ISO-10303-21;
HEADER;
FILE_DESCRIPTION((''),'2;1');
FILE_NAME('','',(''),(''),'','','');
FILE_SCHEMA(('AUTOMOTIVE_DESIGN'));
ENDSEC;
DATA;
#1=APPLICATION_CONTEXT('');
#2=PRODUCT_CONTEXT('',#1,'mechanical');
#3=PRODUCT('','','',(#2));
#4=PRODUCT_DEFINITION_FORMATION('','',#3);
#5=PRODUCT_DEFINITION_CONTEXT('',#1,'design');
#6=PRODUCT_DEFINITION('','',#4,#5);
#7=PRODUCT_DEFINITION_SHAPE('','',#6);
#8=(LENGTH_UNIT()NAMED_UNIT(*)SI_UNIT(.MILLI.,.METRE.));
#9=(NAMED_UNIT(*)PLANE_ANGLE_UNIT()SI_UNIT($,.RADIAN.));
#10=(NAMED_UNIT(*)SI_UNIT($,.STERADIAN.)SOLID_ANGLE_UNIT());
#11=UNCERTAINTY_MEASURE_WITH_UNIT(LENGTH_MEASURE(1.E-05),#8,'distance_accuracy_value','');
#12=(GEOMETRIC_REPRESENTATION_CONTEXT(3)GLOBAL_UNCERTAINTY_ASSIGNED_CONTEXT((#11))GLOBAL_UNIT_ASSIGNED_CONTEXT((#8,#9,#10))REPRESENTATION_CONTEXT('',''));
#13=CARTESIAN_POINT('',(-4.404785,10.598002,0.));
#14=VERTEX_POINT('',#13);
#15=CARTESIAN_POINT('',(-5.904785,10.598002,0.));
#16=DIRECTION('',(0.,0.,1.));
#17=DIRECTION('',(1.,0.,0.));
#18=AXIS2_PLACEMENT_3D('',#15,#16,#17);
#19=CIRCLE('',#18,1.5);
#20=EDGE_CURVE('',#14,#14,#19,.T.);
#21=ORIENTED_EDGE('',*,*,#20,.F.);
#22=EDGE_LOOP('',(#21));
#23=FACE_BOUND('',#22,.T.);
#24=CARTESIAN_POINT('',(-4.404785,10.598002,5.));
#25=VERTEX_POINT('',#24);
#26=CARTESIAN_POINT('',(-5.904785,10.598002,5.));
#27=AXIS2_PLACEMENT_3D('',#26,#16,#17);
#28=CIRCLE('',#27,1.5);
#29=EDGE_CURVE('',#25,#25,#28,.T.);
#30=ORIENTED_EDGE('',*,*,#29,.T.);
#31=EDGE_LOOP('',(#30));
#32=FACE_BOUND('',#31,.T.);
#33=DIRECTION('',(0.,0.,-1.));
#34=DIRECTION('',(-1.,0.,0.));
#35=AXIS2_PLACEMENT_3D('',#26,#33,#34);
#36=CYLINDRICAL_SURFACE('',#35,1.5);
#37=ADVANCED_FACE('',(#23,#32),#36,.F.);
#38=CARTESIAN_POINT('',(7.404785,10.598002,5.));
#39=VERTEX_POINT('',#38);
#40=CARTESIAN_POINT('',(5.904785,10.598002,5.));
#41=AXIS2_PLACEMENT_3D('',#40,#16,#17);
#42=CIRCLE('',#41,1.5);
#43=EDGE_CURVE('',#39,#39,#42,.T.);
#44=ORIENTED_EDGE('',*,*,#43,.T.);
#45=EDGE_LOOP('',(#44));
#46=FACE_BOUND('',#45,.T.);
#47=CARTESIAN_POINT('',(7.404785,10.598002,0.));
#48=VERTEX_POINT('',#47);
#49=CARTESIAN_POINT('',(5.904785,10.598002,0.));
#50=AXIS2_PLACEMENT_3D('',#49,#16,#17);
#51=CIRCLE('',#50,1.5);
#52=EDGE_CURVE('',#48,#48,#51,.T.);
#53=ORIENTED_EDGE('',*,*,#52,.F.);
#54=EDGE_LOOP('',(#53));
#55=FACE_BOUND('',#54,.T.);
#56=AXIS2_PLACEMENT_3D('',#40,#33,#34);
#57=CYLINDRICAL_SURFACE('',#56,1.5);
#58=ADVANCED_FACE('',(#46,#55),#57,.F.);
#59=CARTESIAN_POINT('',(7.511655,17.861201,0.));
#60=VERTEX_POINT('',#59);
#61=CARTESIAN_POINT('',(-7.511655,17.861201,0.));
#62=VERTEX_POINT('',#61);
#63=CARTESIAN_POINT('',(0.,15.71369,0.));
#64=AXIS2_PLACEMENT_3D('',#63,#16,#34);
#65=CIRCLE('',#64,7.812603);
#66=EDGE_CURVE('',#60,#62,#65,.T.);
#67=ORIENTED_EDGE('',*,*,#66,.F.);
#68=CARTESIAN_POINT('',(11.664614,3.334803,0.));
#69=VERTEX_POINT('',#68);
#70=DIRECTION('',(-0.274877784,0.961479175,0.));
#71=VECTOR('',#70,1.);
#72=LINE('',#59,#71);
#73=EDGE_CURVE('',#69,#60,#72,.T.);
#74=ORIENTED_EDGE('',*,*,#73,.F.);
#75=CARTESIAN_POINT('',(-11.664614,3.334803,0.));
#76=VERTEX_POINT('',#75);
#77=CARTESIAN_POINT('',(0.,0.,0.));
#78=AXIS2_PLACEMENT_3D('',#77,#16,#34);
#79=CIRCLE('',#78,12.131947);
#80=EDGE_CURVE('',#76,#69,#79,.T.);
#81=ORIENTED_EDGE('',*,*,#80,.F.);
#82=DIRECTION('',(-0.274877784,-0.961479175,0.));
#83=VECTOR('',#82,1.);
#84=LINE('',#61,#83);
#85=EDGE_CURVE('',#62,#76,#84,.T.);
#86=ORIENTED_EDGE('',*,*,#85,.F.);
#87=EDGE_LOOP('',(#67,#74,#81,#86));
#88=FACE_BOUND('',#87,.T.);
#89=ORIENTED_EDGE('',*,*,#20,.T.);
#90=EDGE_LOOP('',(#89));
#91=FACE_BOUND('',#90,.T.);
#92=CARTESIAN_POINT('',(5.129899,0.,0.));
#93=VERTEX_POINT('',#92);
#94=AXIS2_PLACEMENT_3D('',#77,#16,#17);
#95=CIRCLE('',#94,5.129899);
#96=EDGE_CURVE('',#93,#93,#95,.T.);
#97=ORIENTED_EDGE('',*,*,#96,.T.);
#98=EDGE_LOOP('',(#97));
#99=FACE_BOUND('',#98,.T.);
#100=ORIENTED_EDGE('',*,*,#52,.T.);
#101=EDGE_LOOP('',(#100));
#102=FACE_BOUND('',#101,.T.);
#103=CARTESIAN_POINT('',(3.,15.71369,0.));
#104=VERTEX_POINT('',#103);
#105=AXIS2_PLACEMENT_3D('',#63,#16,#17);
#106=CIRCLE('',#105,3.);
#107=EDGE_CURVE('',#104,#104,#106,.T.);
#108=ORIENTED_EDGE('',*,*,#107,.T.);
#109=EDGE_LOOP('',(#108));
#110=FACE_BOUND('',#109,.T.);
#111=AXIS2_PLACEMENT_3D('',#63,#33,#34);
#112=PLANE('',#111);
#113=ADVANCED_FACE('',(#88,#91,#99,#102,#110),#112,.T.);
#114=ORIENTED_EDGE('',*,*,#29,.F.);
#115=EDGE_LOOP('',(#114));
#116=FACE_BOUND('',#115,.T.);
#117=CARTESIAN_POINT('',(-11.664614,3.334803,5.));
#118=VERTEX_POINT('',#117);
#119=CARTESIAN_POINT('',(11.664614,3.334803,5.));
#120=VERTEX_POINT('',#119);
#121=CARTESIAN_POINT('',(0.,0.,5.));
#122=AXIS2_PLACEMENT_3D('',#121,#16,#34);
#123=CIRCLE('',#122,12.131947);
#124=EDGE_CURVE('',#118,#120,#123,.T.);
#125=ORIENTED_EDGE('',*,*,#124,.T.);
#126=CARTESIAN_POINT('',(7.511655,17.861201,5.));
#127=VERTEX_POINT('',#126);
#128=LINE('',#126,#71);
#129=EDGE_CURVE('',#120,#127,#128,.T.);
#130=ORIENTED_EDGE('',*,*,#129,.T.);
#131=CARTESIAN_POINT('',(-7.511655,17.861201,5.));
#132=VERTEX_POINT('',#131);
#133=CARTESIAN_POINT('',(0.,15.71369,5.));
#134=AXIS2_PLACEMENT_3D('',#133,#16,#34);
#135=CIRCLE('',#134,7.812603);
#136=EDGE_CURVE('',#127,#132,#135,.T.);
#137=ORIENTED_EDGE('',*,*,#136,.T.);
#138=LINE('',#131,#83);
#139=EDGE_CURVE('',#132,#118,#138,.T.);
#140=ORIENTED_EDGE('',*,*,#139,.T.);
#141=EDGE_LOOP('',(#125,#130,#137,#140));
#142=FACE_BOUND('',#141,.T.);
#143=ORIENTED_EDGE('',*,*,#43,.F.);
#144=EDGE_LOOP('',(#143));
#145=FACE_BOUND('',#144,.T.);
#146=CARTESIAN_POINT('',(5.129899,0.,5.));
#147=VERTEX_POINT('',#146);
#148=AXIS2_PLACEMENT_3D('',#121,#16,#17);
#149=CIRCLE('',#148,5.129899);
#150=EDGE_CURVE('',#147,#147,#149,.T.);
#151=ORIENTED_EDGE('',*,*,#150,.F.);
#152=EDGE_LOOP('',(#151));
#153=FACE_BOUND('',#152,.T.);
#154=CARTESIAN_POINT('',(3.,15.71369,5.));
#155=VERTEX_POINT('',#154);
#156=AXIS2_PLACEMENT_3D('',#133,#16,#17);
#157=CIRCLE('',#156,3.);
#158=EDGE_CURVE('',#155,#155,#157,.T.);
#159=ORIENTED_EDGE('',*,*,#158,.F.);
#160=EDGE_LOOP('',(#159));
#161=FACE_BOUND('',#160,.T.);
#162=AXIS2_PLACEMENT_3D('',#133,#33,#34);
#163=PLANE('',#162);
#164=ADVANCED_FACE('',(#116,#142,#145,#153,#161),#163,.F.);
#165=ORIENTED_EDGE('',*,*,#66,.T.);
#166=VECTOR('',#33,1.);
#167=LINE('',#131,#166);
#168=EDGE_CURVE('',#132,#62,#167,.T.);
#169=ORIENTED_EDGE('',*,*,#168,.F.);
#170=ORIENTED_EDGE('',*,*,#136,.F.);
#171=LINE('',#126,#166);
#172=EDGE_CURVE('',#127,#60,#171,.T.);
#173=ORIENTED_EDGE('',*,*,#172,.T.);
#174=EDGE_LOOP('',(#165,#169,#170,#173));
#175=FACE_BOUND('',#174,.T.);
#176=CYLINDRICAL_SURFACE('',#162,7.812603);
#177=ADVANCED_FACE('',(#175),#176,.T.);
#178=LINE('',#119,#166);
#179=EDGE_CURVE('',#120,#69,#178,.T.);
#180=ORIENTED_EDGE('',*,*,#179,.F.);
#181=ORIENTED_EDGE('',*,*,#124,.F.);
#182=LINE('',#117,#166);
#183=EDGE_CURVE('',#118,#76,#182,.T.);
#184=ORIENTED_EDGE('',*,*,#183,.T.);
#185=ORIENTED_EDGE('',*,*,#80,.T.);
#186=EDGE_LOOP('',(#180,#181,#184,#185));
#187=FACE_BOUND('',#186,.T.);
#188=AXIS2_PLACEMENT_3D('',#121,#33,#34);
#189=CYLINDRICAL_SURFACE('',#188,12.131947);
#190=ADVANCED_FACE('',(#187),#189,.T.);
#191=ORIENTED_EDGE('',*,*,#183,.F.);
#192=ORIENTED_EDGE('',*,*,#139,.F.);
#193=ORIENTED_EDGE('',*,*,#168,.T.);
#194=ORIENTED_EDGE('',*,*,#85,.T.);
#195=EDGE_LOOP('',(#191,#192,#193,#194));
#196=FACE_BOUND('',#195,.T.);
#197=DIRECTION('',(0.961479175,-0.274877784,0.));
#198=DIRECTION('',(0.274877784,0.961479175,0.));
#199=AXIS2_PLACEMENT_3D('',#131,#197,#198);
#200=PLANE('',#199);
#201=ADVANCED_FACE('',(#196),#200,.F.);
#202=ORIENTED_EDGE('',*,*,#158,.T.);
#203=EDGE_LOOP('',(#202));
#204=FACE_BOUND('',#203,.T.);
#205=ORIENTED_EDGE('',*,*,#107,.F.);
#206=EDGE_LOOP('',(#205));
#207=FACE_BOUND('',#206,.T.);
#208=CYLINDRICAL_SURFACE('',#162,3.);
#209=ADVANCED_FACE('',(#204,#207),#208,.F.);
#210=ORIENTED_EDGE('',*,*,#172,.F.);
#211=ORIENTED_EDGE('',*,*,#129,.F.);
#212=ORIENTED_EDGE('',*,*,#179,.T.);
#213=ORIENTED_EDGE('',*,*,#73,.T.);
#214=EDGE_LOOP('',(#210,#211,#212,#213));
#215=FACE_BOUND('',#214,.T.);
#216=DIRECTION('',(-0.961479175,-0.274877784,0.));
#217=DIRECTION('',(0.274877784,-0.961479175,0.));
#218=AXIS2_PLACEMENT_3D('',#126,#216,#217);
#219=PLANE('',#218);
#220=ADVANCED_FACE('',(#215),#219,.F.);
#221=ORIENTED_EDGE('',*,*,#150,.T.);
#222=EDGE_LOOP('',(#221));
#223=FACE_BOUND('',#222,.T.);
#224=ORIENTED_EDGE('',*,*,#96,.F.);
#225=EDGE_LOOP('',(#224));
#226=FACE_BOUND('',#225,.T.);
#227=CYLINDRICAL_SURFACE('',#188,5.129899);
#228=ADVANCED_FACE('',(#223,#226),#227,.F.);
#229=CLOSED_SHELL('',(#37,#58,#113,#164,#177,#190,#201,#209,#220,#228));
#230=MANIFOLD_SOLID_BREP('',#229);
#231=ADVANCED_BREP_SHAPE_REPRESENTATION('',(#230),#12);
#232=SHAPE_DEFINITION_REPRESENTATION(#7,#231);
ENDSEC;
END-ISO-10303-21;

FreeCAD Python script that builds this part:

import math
import FreeCAD as App
import Part
import Sketcher

doc = App.newDocument("Part")
body = doc.addObject("PartDesign::Body", "Body")

sketch1 = body.newObject("Sketcher::SketchObject", "Sketch")
sketch1.AttachmentSupport = (doc.getObject("XY_Plane"), [""])
sketch1.MapMode = "FlatFace"
sketch1.addGeometry([
    Part.LineSegment(App.Vector(11.7, 3.3, 0), App.Vector(7.5, 17.9, 0)),
    Part.ArcOfCircle(Part.Circle(App.Vector(0, 15.7, 0), App.Vector(0, 0, 1), 7.8), math.radians(16), math.radians(164)),
    Part.LineSegment(App.Vector(-7.5, 17.9, 0), App.Vector(-11.7, 3.3, 0)),
    Part.ArcOfCircle(Part.Circle(App.Vector(0, 0, 0), App.Vector(0, 0, 1), 12.1), math.radians(164), math.radians(376)),
    Part.Circle(App.Vector(0, 0, 0), App.Vector(0, 0, 1), 5.1),
    Part.Circle(App.Vector(5.9, 10.6, 0), App.Vector(0, 0, 1), 1.5),
    Part.Circle(App.Vector(0, 15.7, 0), App.Vector(0, 0, 1), 3),
    Part.Circle(App.Vector(-5.9, 10.6, 0), App.Vector(0, 0, 1), 1.5),
], False)
sketch1.addConstraint([
    Sketcher.Constraint("Tangent", 0, 2, 1, 1),
    Sketcher.Constraint("Tangent", 1, 2, 2, 1),
    Sketcher.Constraint("Tangent", 2, 2, 3, 1),
    Sketcher.Constraint("Tangent", 3, 2, 0, 1),
    Sketcher.Constraint("Coincident", 3, 3, -1, 1),
    Sketcher.Constraint("Coincident", 4, 3, -1, 1),
    Sketcher.Constraint("Coincident", 6, 3, 1, 3),
    Sketcher.Constraint("Equal", 5, 7),
    Sketcher.Constraint("Symmetric", 5, 3, 7, 3, -2),
    Sketcher.Constraint("PointOnObject", 1, 3, -2),
    Sketcher.Constraint("Diameter", 5, 3.0),
    Sketcher.Constraint("Diameter", 6, 6.0),
    Sketcher.Constraint("Diameter", 4, 10.259797),
    Sketcher.Constraint("DistanceY", -1, 1, 5, 3, 10.598002),
    Sketcher.Constraint("Radius", 1, 7.812603),
    Sketcher.Constraint("Radius", 3, 12.131947),
    Sketcher.Constraint("DistanceY", -1, 1, 0, 2, 17.861201),
    Sketcher.Constraint("DistanceX", 7, 3, 5, 3, 11.809571),
])
pad1 = body.newObject("PartDesign::Pad", "Pad")
pad1.Profile = sketch1
pad1.Length = 5

doc.recompute()
